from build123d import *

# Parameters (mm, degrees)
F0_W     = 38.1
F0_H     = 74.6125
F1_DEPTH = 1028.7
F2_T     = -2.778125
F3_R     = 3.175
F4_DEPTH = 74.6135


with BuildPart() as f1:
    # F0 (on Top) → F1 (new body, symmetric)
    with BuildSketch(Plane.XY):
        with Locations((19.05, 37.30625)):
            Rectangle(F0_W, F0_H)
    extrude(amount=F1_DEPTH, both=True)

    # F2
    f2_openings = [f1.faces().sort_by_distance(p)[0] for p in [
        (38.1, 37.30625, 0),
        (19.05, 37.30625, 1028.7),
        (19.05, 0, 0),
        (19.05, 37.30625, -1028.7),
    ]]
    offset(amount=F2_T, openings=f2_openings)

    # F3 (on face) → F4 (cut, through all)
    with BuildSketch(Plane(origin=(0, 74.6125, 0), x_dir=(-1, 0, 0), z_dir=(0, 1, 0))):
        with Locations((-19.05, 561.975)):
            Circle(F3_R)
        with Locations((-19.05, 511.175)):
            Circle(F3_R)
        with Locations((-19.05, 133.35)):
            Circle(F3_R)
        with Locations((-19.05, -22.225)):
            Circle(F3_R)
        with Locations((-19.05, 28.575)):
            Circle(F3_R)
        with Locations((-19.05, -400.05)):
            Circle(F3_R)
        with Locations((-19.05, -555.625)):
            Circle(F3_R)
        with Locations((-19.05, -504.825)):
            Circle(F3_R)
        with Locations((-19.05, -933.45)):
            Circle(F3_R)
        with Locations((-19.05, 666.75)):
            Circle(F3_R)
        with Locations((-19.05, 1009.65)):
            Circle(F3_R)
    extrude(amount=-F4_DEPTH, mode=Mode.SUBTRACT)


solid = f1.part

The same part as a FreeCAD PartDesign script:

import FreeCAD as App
import Part
import Sketcher

V = App.Vector
Q = App.Units.Quantity


def faces_at(feature, points):
    """Names of the faces that lie closest to the given points."""
    faces = feature.Shape.Faces
    near = lambda p: min(range(len(faces)), key=lambda i: faces[i].distToShape(Part.Vertex(*p))[0])
    return sorted({f"Face{near(p) + 1}" for p in points})


def add_polygon(sketch, points):
    """Adds a closed chain of lines whose ends are joined by coincident constraints."""
    first, n = sketch.GeometryCount, len(points)
    for a, b in zip(points, points[1:] + points[:1]):
        sketch.addGeometry(Part.LineSegment(App.Vector(*a, 0), App.Vector(*b, 0)), False)
    for i in range(n):
        sketch.addConstraint(Sketcher.Constraint("Coincident", first + i, 2, first + (i + 1) % n, 1))

doc = App.newDocument("Part")
params = doc.addObject("Spreadsheet::Sheet", "Params")
for row, (alias, value) in enumerate([
    ("sketch1_width", "1.5 in"),
    ("sketch1_height", "2.9375 in"),
    ("pad1_length", "81 in"),
    ("thickness_wall", "0.109375 in"),
    ("sketch2_diameter", "0.25 in"),
], start=1):
    params.set(f"A{row}", alias)
    params.set(f"B{row}", "=" + value)
    params.setAlias(f"B{row}", alias)

body = doc.addObject("PartDesign::Body", "Body")

sketch1 = doc.addObject("Sketcher::SketchObject", "Sketch")
body.addObject(sketch1)
sketch1.AttachmentSupport = (doc.XY_Plane, [""])
sketch1.MapMode = "FlatFace"
add_polygon(sketch1, [(0, 75), (0, 0), (38, 0), (38, 75)])
sketch1.addConstraint(Sketcher.Constraint("Vertical", 0))
sketch1.addConstraint(Sketcher.Constraint("Horizontal", 1))
sketch1.addConstraint(Sketcher.Constraint("Vertical", 2))
sketch1.addConstraint(Sketcher.Constraint("Horizontal", 3))
sketch1.addConstraint(Sketcher.Constraint("Coincident", 0, 2, -1, 1))
sketch1.addConstraint(Sketcher.Constraint("DistanceX", 1, 1, 1, 2, Q("1.5 in")))
sketch1.addConstraint(Sketcher.Constraint("DistanceY", 0, 2, 0, 1, Q("2.9375 in")))
sketch1.setExpression("Constraints[9]", "Params.sketch1_width")
sketch1.setExpression("Constraints[10]", "Params.sketch1_height")
pad1 = doc.addObject("PartDesign::Pad", "Pad")
body.addObject(pad1)
pad1.Profile = sketch1
pad1.setExpression("Length", "Params.pad1_length")
pad1.Midplane = True
doc.recompute()

thickness = doc.addObject("PartDesign::Thickness", "Thickness")
body.addObject(thickness)
thickness.Base = (pad1, faces_at(pad1, [
    (38.1, 37.306, 0),
    (19.05, 37.306, 1028.7),
    (19.05, 0, 0),
    (19.05, 37.306, -1028.7),
]))
thickness.setExpression("Value", "Params.thickness_wall")
thickness.Reversed = True
thickness.Join = "Arc"

sketch2 = doc.addObject("Sketcher::SketchObject", "Sketch001")
body.addObject(sketch2)
sketch2.AttachmentSupport = (doc.XZ_Plane, [""])
sketch2.MapMode = "FlatFace"
sketch2.AttachmentOffset = App.Placement(V(0, 0, -2.9375 * 25.4), App.Rotation())
sketch2.addGeometry(Part.Circle(V(19.1, 562, 0), V(0, 0, 1), 3.2), False)
sketch2.addGeometry(Part.Circle(V(19.1, 511.2, 0), V(0, 0, 1), 3.2), False)
sketch2.addGeometry(Part.Circle(V(19.1, 133.3, 0), V(0, 0, 1), 3.2), False)
sketch2.addGeometry(Part.Circle(V(19.1, -22.2, 0), V(0, 0, 1), 3.2), False)
sketch2.addGeometry(Part.Circle(V(19.1, 28.6, 0), V(0, 0, 1), 3.2), False)
sketch2.addGeometry(Part.Circle(V(19.1, -400.1, 0), V(0, 0, 1), 3.2), False)
sketch2.addGeometry(Part.Circle(V(19.1, -555.6, 0), V(0, 0, 1), 3.2), False)
sketch2.addGeometry(Part.Circle(V(19.1, -504.8, 0), V(0, 0, 1), 3.2), False)
sketch2.addGeometry(Part.Circle(V(19.1, -933.5, 0), V(0, 0, 1), 3.2), False)
sketch2.addGeometry(Part.Circle(V(19.1, 666.8, 0), V(0, 0, 1), 3.2), False)
sketch2.addGeometry(Part.Circle(V(19.1, 1009.6, 0), V(0, 0, 1), 3.2), False)
sketch2.addConstraint(Sketcher.Constraint("Equal", 0, 1))
sketch2.addConstraint(Sketcher.Constraint("Equal", 1, 2))
sketch2.addConstraint(Sketcher.Constraint("Equal", 2, 3))
sketch2.addConstraint(Sketcher.Constraint("Equal", 3, 4))
sketch2.addConstraint(Sketcher.Constraint("Equal", 4, 5))
sketch2.addConstraint(Sketcher.Constraint("Equal", 5, 6))
sketch2.addConstraint(Sketcher.Constraint("Equal", 6, 7))
sketch2.addConstraint(Sketcher.Constraint("Equal", 7, 8))
sketch2.addConstraint(Sketcher.Constraint("Equal", 8, 9))
sketch2.addConstraint(Sketcher.Constraint("Equal", 9, 10))
sketch2.addConstraint(Sketcher.Constraint("Vertical", 0, 3, 1, 3))
sketch2.addConstraint(Sketcher.Constraint("Vertical", 1, 3, 2, 3))
sketch2.addConstraint(Sketcher.Constraint("Vertical", 2, 3, 3, 3))
sketch2.addConstraint(Sketcher.Constraint("Vertical", 3, 3, 4, 3))
sketch2.addConstraint(Sketcher.Constraint("Vertical", 4, 3, 5, 3))
sketch2.addConstraint(Sketcher.Constraint("Vertical", 5, 3, 6, 3))
sketch2.addConstraint(Sketcher.Constraint("Vertical", 6, 3, 7, 3))
sketch2.addConstraint(Sketcher.Constraint("Vertical", 7, 3, 8, 3))
sketch2.addConstraint(Sketcher.Constraint("Vertical", 8, 3, 9, 3))
sketch2.addConstraint(Sketcher.Constraint("Vertical", 9, 3, 10, 3))
sketch2.addConstraint(Sketcher.Constraint("Diameter", 0, Q("0.25 in")))
sketch2.addConstraint(Sketcher.Constraint("DistanceY", 1, 3, 0, 3, Q("2 in")))
sketch2.addConstraint(Sketcher.Constraint("DistanceY", 3, 3, 1, 3, Q("21 in")))
sketch2.addConstraint(Sketcher.Constraint("DistanceY", 3, 3, 4, 3, Q("2 in")))
sketch2.addConstraint(Sketcher.Constraint("DistanceY", 5, 3, 2, 3, Q("21 in")))
sketch2.addConstraint(Sketcher.Constraint("DistanceY", 6, 3, 3, 3, Q("21 in")))
sketch2.addConstraint(Sketcher.Constraint("DistanceY", 6, 3, 7, 3, Q("2 in")))
sketch2.addConstraint(Sketcher.Constraint("DistanceY", 8, 3, 5, 3, Q("21 in")))
sketch2.addConstraint(Sketcher.Constraint("DistanceY", 2, 3, 9, 3, Q("21 in")))
sketch2.addConstraint(Sketcher.Constraint("DistanceY", 9, 3, 10, 3, Q("13.5 in")))
sketch2.addConstraint(Sketcher.Constraint("DistanceX", -1, 1, 0, 3, Q("0.75 in")))
sketch2.addConstraint(Sketcher.Constraint("DistanceY", -1, 1, 2, 3, Q("5.25 in")))
sketch2.addConstraint(Sketcher.Constraint("DistanceY", -1, 1, 0, 3, Q("22.125 in")))
sketch2.setExpression("Constraints[20]", "Params.sketch2_diameter")
pocket1 = doc.addObject("PartDesign::Pocket", "Pocket")
body.addObject(pocket1)
pocket1.Profile = sketch2
pocket1.Type = "ThroughAll"
pocket1.Reversed = True

doc.recompute()
